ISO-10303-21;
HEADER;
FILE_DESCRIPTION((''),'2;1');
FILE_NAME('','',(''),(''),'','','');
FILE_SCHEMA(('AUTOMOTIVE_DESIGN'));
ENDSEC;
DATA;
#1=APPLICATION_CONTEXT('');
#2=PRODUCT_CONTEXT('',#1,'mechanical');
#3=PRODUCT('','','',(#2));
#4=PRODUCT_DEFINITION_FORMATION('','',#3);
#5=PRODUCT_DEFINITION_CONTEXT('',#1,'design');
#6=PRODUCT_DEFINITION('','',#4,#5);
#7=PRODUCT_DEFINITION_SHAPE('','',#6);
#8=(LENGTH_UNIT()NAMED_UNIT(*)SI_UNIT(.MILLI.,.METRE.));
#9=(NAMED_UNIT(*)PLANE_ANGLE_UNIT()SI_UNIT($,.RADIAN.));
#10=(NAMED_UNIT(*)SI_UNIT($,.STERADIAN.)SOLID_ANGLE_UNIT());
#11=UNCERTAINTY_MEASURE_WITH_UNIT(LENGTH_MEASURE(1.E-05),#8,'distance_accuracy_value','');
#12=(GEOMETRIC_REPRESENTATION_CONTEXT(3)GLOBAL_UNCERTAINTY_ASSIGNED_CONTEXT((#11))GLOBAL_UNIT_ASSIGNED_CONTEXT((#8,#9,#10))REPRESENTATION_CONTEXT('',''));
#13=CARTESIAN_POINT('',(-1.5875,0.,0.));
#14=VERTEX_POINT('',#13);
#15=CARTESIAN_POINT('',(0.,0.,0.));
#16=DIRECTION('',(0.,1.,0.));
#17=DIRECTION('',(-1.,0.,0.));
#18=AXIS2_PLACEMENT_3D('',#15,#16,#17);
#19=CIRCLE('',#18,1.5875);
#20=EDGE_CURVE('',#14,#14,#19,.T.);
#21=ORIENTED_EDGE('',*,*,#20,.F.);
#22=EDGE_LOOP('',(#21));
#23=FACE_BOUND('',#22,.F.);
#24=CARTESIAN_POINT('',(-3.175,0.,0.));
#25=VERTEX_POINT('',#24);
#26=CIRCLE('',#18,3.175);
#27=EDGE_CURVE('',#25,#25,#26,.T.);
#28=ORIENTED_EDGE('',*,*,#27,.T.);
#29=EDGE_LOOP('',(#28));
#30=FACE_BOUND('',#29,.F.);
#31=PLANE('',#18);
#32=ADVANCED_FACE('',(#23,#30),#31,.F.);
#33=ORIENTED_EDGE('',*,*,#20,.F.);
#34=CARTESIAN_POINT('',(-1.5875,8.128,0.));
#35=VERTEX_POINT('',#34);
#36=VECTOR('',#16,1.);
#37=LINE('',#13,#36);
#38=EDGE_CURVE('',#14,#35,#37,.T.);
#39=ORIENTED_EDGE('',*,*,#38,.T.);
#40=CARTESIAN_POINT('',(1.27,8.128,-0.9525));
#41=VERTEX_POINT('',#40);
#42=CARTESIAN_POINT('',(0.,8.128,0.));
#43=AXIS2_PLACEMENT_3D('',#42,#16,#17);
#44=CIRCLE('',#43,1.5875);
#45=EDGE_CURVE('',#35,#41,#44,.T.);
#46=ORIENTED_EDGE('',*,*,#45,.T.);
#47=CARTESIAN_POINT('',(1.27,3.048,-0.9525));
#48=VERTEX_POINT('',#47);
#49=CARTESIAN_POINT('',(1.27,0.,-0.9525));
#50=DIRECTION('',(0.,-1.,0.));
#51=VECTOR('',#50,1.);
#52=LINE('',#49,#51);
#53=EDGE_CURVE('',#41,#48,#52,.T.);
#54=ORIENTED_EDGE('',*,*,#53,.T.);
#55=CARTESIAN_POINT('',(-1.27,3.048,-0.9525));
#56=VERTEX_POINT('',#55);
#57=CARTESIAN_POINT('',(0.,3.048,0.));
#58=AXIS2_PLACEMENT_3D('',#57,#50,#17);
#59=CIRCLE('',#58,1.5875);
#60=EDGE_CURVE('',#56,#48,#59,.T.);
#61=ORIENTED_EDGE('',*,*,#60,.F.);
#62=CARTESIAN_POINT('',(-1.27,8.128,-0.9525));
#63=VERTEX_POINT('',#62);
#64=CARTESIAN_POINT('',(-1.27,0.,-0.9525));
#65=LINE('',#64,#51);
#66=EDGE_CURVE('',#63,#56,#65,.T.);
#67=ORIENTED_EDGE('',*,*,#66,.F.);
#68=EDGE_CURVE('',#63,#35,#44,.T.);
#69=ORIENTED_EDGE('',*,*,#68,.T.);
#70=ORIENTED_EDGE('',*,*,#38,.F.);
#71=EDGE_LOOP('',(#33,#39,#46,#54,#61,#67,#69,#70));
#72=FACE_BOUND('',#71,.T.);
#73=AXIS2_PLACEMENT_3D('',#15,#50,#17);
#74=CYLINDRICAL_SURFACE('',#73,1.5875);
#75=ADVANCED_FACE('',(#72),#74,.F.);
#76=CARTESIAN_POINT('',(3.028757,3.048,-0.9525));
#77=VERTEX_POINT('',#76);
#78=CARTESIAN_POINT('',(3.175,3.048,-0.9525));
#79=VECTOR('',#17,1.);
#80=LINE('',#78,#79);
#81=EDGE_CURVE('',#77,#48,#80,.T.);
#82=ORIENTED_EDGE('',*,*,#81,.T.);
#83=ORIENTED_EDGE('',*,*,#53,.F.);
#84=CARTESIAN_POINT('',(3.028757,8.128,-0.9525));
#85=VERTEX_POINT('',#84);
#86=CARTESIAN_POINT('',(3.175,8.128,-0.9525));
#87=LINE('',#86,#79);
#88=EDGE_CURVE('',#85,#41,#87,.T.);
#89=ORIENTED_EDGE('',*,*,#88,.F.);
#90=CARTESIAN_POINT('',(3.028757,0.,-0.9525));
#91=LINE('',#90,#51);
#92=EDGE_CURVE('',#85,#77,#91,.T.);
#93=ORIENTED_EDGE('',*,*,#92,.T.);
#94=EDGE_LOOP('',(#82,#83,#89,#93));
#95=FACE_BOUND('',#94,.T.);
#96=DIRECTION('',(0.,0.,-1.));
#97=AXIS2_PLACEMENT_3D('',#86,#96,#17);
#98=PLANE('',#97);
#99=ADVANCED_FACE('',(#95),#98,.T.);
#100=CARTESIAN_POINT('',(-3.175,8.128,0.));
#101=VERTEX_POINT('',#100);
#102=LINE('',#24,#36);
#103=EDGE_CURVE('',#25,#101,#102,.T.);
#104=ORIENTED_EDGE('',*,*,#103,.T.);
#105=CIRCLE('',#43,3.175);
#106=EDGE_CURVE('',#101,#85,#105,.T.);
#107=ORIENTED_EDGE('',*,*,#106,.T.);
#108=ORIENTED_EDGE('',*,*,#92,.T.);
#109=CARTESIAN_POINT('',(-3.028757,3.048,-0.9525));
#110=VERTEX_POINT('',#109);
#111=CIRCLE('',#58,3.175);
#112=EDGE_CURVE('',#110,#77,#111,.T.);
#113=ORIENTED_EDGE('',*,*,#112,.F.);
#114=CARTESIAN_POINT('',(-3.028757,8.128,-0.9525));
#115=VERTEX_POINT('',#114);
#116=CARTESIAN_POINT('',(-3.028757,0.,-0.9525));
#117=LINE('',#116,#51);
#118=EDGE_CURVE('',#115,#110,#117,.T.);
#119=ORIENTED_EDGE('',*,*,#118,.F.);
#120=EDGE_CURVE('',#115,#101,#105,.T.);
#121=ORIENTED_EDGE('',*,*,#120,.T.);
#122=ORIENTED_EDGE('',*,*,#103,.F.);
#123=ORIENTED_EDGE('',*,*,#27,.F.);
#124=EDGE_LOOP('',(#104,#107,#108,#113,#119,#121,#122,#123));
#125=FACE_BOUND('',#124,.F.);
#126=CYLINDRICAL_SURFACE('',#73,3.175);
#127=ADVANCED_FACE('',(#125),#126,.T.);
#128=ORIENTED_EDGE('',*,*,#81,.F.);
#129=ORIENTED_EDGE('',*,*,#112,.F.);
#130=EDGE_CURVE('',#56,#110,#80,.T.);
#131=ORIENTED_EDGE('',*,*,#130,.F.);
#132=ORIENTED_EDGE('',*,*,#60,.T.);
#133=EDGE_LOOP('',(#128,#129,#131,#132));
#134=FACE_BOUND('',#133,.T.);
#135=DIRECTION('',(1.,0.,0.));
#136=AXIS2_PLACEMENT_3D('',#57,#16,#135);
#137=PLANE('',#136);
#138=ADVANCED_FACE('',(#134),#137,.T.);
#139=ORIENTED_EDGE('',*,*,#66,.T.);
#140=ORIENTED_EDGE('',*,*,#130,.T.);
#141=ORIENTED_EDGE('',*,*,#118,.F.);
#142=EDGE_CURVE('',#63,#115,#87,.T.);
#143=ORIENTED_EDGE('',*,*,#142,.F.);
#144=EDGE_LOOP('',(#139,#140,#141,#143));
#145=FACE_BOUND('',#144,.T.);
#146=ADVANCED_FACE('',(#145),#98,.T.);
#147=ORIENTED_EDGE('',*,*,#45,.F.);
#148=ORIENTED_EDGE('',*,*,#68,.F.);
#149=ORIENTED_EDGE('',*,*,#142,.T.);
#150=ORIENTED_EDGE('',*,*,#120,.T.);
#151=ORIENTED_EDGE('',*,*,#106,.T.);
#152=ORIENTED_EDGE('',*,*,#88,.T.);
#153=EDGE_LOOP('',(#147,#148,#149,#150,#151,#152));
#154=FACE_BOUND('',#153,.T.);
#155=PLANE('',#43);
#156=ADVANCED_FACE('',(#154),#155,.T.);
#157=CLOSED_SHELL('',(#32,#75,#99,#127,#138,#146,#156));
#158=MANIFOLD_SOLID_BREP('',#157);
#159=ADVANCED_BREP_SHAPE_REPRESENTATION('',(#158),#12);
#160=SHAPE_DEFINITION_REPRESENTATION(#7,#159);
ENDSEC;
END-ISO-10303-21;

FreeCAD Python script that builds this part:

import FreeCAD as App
import Part
import Sketcher
Q = App.Units.Quantity

doc = App.newDocument("Part")
params = doc.addObject("Spreadsheet::Sheet", "Params")
for row, (alias, value) in enumerate([
    ("sketch1_diameter", "0.25 in"),
    ("sketch1_diameter2", "0.125 in"),
    ("pad1_length", "0.32 in"),
    ("sketch2_width", "0.25 in"),
    ("pocket1_length", "0.2 in"),
], start=1):
    params.set(f"A{row}", alias)
    params.set(f"B{row}", "=" + value)
    params.setAlias(f"B{row}", alias)

body = doc.addObject("PartDesign::Body", "Body")

sketch1 = body.newObject("Sketcher::SketchObject", "Sketch")
sketch1.AttachmentSupport = (doc.getObject("XZ_Plane"), [""])
sketch1.MapMode = "FlatFace"
sketch1.addGeometry([
    Part.Circle(App.Vector(0, 0, 0), App.Vector(0, 0, 1), 3.175),
    Part.Circle(App.Vector(0, 0, 0), App.Vector(0, 0, 1), 1.5875),
], False)
sketch1.addConstraint([
    Sketcher.Constraint("Coincident", 0, 3, -1, 1),
    Sketcher.Constraint("Coincident", 1, 3, -1, 1),
    Sketcher.Constraint("Diameter", 0, Q("0.25 in")),
    Sketcher.Constraint("Diameter", 1, Q("0.125 in")),
])
sketch1.setExpression("Constraints[2]", "Params.sketch1_diameter")
sketch1.setExpression("Constraints[3]", "Params.sketch1_diameter2")
pad1 = body.newObject("PartDesign::Pad", "Pad")
pad1.Profile = sketch1
pad1.setExpression("Length", "Params.pad1_length")
pad1.Reversed = True

sketch2 = body.newObject("Sketcher::SketchObject", "Sketch001")
sketch2.AttachmentSupport = (doc.getObject("XZ_Plane"), [""])
sketch2.MapMode = "FlatFace"
sketch2.AttachmentOffset = App.Placement(App.Vector(0, 0, -0.32 * 25.4), App.Rotation())
sketch2.addGeometry([
    Part.LineSegment(App.Vector(3.175, -3.7564, 0), App.Vector(-3.175, -3.7564, 0)),
    Part.LineSegment(App.Vector(-3.175, -3.7564, 0), App.Vector(-3.175, -0.9525, 0)),
    Part.LineSegment(App.Vector(-3.175, -0.9525, 0), App.Vector(3.175, -0.9525, 0)),
    Part.LineSegment(App.Vector(3.175, -0.9525, 0), App.Vector(3.175, -3.7564, 0)),
], False)
sketch2.addConstraint([
    Sketcher.Constraint("Coincident", 0, 2, 1, 1),
    Sketcher.Constraint("Coincident", 1, 2, 2, 1),
    Sketcher.Constraint("Coincident", 2, 2, 3, 1),
    Sketcher.Constraint("Coincident", 3, 2, 0, 1),
    Sketcher.Constraint("Horizontal", 0),
    Sketcher.Constraint("Vertical", 1),
    Sketcher.Constraint("Horizontal", 2),
    Sketcher.Constraint("Vertical", 3),
    Sketcher.Constraint("DistanceX", 0, 2, 0, 1, Q("0.25 in")),
    Sketcher.Constraint("DistanceX", 0, 2, -1, 1, Q("0.125 in")),
    Sketcher.Constraint("DistanceY", 1, 2, -1, 1, Q("0.0375 in")),
    Sketcher.Constraint("DistanceY", 1, 1, 1, 2, Q("0.1104 in")),
])
sketch2.setExpression("Constraints[8]", "Params.sketch2_width")
pocket1 = body.newObject("PartDesign::Pocket", "Pocket")
pocket1.Profile = sketch2
pocket1.setExpression("Length", "Params.pocket1_length")
pocket1.Reversed = True

doc.recompute()
